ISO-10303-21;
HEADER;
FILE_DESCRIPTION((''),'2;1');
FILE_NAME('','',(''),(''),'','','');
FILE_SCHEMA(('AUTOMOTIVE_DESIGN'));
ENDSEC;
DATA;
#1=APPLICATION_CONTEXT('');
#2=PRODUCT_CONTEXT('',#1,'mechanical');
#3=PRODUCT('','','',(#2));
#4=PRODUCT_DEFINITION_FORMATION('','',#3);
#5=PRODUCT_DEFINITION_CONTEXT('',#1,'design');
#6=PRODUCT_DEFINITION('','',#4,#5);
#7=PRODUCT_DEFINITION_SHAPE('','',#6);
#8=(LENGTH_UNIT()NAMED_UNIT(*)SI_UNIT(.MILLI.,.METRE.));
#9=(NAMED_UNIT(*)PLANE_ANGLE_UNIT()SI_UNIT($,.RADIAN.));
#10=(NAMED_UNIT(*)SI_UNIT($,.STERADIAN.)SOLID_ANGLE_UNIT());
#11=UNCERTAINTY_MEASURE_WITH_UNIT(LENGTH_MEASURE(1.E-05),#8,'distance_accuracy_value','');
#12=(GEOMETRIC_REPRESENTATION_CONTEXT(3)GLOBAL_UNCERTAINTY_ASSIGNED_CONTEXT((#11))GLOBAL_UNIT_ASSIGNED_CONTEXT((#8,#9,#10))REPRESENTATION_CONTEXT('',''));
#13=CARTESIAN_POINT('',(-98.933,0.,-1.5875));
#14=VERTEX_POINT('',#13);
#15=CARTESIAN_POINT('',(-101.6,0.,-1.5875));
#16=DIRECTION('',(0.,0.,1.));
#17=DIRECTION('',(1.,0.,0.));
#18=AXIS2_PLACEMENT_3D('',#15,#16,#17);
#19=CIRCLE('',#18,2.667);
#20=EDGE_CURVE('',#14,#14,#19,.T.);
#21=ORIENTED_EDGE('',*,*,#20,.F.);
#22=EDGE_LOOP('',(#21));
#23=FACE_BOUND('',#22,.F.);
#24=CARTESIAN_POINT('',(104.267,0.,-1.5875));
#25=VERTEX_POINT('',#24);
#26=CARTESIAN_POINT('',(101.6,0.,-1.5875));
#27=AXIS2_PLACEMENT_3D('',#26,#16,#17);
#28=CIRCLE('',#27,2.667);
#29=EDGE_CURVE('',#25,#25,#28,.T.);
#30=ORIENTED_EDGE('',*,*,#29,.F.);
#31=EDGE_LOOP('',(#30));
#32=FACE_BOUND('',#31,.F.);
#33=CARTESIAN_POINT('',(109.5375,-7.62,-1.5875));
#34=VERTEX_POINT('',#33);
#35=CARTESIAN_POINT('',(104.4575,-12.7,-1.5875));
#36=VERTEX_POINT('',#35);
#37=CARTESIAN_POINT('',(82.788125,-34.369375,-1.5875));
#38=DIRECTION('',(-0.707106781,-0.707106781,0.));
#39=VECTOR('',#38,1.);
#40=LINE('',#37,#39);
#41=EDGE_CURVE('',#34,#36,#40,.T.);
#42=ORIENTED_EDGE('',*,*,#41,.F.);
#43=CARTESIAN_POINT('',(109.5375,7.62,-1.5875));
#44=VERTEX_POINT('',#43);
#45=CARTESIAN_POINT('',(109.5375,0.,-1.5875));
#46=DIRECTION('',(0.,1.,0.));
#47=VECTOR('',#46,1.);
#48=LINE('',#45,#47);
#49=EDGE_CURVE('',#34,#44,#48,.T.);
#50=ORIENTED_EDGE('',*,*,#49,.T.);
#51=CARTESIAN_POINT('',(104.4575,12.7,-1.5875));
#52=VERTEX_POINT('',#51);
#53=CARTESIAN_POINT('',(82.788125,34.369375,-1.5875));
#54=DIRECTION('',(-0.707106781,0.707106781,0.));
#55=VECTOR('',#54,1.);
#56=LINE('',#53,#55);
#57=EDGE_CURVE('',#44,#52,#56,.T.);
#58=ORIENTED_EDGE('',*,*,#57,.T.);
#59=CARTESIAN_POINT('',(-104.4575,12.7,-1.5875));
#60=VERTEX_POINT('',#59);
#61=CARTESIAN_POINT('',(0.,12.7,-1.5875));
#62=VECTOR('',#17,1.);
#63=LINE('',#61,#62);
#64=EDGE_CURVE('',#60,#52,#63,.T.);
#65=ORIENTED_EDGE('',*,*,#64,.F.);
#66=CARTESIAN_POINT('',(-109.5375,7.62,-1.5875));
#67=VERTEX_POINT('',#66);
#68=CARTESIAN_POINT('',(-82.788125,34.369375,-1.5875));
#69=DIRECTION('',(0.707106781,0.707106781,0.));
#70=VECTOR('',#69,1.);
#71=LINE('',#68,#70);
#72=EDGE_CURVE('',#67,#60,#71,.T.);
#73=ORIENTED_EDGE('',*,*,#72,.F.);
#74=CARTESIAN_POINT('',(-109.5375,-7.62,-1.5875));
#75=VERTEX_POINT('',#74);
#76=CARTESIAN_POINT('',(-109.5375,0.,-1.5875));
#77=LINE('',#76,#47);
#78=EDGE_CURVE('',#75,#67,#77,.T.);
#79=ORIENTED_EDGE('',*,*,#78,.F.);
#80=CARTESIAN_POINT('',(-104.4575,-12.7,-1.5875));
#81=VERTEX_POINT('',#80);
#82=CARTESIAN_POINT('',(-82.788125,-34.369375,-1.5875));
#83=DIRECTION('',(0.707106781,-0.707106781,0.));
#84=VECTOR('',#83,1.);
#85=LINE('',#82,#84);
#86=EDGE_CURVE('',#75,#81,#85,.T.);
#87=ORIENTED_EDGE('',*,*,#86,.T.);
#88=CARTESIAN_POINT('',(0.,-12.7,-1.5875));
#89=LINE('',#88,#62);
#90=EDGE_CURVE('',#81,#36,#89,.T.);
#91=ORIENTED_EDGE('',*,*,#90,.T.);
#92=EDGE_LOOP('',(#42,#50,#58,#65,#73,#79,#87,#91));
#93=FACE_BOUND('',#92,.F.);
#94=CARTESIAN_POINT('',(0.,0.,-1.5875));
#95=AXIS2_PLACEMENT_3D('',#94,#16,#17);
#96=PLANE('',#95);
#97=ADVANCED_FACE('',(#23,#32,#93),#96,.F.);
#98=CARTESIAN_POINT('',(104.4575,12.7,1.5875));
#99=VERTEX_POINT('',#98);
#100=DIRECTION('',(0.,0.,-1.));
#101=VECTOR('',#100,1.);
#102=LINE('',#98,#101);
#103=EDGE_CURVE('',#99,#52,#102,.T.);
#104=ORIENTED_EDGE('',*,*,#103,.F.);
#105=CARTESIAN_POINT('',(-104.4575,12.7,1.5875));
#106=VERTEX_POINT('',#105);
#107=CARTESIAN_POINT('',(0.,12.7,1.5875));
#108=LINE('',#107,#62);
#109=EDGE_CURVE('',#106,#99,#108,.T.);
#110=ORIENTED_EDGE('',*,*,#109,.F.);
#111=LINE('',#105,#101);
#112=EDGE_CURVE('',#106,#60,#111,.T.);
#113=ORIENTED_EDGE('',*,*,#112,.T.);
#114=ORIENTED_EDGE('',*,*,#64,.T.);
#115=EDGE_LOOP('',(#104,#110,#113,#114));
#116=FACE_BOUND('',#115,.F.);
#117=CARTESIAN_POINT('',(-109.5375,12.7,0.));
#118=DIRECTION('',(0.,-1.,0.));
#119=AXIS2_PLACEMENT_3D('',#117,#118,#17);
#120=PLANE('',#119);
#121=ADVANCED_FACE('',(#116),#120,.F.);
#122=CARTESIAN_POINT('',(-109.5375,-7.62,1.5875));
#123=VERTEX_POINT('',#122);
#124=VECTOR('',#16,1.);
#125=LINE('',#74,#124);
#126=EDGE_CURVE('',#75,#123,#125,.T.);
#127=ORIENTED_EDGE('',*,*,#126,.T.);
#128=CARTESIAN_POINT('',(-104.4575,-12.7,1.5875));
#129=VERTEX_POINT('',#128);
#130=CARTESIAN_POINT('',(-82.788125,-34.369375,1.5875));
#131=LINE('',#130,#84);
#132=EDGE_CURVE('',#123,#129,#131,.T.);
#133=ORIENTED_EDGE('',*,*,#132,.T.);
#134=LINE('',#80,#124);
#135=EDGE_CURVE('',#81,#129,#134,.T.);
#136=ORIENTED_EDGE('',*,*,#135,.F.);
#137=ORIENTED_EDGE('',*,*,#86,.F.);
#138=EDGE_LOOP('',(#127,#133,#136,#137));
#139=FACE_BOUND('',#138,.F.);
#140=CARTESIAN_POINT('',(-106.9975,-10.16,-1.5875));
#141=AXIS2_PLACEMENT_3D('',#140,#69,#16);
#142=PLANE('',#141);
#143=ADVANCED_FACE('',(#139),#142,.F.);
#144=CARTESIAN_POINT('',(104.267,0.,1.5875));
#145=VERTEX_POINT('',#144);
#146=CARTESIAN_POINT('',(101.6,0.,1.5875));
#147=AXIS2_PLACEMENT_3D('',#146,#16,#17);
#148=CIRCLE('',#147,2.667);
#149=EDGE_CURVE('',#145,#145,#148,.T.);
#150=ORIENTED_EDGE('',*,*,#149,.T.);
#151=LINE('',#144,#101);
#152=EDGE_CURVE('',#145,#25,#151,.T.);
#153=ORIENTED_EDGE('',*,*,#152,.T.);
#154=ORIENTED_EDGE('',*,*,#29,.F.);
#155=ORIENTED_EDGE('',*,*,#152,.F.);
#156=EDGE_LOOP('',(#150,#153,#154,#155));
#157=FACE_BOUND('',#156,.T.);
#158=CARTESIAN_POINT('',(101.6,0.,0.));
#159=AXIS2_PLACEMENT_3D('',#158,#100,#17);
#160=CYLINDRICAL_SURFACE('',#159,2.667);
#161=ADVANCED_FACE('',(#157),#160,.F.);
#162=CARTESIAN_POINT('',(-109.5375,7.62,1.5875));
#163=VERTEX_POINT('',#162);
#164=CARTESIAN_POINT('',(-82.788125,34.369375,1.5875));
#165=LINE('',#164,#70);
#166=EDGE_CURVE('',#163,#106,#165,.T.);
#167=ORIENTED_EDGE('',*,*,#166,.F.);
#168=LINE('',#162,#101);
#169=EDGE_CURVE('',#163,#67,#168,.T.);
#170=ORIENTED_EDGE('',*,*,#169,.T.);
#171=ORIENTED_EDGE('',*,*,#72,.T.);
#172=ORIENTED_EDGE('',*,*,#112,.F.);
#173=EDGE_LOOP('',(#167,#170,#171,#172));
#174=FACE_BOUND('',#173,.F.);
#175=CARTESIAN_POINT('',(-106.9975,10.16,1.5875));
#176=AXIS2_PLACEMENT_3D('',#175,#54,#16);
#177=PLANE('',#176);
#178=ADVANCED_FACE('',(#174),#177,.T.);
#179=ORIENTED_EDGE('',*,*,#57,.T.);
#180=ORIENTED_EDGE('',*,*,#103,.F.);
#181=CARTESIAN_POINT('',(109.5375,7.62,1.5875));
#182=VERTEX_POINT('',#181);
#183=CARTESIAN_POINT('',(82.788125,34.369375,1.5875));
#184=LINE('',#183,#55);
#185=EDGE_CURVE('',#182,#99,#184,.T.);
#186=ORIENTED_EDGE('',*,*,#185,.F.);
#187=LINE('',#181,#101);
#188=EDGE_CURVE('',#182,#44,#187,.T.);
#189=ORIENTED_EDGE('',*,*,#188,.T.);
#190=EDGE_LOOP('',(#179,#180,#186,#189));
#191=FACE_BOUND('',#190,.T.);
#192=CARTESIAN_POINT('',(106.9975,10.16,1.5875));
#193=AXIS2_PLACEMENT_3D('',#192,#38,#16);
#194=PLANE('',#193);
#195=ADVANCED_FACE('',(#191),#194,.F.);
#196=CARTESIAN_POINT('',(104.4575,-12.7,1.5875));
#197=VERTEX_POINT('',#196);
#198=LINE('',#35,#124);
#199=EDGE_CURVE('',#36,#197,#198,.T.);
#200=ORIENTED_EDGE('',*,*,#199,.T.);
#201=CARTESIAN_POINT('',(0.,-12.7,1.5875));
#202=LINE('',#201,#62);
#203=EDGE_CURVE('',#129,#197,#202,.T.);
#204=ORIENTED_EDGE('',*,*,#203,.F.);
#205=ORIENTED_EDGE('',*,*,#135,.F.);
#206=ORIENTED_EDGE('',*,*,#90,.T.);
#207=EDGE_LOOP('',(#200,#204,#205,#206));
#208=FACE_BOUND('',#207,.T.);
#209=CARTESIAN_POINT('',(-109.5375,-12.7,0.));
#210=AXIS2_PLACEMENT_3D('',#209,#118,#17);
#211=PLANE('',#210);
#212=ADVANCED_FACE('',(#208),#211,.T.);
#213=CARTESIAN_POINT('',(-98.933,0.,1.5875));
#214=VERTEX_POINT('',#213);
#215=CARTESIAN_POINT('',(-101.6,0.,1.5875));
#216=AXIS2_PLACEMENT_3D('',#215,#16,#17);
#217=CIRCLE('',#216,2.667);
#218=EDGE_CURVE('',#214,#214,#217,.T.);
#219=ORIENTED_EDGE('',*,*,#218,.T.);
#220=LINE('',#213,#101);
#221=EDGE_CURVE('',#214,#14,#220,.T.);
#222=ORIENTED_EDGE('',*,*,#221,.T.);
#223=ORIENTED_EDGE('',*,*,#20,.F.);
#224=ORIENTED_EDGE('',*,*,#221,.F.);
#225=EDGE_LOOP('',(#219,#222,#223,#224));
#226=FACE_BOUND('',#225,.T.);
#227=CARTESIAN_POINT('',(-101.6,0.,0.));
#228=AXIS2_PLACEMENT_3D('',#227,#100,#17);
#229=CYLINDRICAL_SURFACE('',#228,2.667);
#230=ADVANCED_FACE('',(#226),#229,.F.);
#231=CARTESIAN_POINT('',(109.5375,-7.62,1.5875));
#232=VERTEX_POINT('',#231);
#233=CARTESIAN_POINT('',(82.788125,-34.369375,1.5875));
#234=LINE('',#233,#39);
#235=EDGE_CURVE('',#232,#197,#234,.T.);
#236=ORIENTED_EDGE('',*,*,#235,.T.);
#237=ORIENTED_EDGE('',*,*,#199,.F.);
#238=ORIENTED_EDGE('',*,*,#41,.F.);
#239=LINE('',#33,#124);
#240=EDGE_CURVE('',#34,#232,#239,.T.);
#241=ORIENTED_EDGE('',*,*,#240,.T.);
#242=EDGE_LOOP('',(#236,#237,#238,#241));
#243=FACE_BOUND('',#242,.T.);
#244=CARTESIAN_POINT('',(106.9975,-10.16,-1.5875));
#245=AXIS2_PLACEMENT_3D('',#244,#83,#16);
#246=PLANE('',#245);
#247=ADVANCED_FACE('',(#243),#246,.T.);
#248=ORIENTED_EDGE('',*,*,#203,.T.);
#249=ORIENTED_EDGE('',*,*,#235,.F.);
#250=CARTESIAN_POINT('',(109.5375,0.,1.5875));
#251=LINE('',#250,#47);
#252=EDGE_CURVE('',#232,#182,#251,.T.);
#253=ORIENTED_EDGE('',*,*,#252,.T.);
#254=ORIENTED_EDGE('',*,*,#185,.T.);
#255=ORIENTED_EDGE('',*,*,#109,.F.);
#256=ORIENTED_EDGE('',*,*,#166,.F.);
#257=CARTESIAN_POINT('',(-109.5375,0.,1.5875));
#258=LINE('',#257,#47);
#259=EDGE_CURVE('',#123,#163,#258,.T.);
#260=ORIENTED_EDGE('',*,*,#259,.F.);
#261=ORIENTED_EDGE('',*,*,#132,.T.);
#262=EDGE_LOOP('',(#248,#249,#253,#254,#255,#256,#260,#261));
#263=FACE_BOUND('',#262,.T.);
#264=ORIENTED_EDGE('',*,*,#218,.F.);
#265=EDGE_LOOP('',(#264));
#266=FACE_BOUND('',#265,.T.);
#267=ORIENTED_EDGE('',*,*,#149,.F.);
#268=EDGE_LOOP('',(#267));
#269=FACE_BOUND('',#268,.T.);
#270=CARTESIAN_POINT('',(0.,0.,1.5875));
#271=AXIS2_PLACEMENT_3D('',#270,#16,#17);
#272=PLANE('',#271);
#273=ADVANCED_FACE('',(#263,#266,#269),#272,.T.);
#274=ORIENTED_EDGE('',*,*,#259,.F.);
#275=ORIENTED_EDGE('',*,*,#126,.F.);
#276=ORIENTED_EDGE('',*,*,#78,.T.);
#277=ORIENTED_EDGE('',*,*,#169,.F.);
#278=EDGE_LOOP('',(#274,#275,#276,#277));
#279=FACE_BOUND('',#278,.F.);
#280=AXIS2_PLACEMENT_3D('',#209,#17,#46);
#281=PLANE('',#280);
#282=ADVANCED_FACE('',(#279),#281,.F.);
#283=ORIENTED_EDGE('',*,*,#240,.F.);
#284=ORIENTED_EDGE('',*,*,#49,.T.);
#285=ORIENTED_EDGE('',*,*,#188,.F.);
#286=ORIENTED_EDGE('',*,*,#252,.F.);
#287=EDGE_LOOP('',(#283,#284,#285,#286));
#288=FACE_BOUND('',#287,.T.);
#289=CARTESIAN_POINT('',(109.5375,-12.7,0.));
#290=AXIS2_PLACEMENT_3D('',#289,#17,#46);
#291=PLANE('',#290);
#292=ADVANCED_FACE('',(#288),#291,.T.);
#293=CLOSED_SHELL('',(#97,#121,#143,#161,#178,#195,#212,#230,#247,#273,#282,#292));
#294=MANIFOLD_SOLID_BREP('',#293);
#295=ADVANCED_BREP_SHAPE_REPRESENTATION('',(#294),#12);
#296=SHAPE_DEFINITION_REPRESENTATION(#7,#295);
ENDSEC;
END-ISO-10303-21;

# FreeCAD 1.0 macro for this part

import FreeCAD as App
import Part
import Sketcher

V = App.Vector
Q = App.Units.Quantity


def edges_at(feature, points):
    """Names of the edges that pass closest to the given points."""
    edges = feature.Shape.Edges
    near = lambda p: min(range(len(edges)), key=lambda i: edges[i].distToShape(Part.Vertex(*p))[0])
    return sorted({f"Edge{near(p) + 1}" for p in points})

doc = App.newDocument("Part")
params = doc.addObject("Spreadsheet::Sheet", "Params")
for row, (alias, value) in enumerate([
    ("sketch1_diameter", "0.21 in"),
    ("sketch1_height", "1 in"),
    ("sketch1_width", "8.625 in"),
    ("pad1_length", "0.125 in"),
    ("chamfer_size", "0.2 in"),
], start=1):
    params.set(f"A{row}", alias)
    params.set(f"B{row}", "=" + value)
    params.setAlias(f"B{row}", alias)

body = doc.addObject("PartDesign::Body", "Body")

# Sketch on XY plane
sketch1 = body.newObject("Sketcher::SketchObject", "Sketch")
sketch1.AttachmentSupport = (doc.getObject("XY_Plane"), [""])
sketch1.MapMode = "FlatFace"
sketch1.addGeometry([
    Part.LineSegment(V(-109.5, 12.7, 0), V(-109.5, -12.7, 0)),  # 0
    Part.LineSegment(V(-109.5, -12.7, 0), V(109.5, -12.7, 0)),  # 1
    Part.LineSegment(V(109.5, -12.7, 0), V(109.5, 12.7, 0)),  # 2
    Part.LineSegment(V(109.5, 12.7, 0), V(-109.5, 12.7, 0)),  # 3
    Part.Circle(V(-101.6, 0, 0), V(0, 0, 1), 2.7),  # 4
    Part.Circle(V(101.6, 0, 0), V(0, 0, 1), 2.7),  # 5
], False)
sketch1.addConstraint([
    Sketcher.Constraint("Coincident", 0, 2, 1, 1),
    Sketcher.Constraint("Coincident", 1, 2, 2, 1),
    Sketcher.Constraint("Coincident", 2, 2, 3, 1),
    Sketcher.Constraint("Coincident", 3, 2, 0, 1),
    Sketcher.Constraint("Vertical", 0),
    Sketcher.Constraint("Horizontal", 1),
    Sketcher.Constraint("Vertical", 2),
    Sketcher.Constraint("Horizontal", 3),
    Sketcher.Constraint("Equal", 4, 5),
    Sketcher.Constraint("Symmetric", 4, 3, 5, 3, -1, 1),
    Sketcher.Constraint("Symmetric", 0, 2, 2, 2, -1, 1),
    Sketcher.Constraint("PointOnObject", 4, 3, -1),
    Sketcher.Constraint("Diameter", 4, Q("0.21 in")),
    Sketcher.Constraint("DistanceY", 0, 2, 0, 1, Q("1 in")),
    Sketcher.Constraint("DistanceX", 4, 3, -1, 1, Q("4 in")),
    Sketcher.Constraint("DistanceX", 1, 1, 1, 2, Q("8.625 in")),
])
sketch1.setExpression("Constraints[12]", "Params.sketch1_diameter")
sketch1.setExpression("Constraints[13]", "Params.sketch1_height")
sketch1.setExpression("Constraints[15]", "Params.sketch1_width")
pad1 = body.newObject("PartDesign::Pad", "Pad")
pad1.Profile = sketch1
pad1.setExpression("Length", "Params.pad1_length")
pad1.Midplane = True
doc.recompute()

chamfer = body.newObject("PartDesign::Chamfer", "Chamfer")
chamfer.Base = (pad1, edges_at(pad1, [
    (-109.537, 12.7, 0),
    (-109.537, -12.7, 0),
    (109.537, 12.7, 0),
    (109.537, -12.7, 0),
]))
chamfer.setExpression("Size", "Params.chamfer_size")

doc.recompute()
